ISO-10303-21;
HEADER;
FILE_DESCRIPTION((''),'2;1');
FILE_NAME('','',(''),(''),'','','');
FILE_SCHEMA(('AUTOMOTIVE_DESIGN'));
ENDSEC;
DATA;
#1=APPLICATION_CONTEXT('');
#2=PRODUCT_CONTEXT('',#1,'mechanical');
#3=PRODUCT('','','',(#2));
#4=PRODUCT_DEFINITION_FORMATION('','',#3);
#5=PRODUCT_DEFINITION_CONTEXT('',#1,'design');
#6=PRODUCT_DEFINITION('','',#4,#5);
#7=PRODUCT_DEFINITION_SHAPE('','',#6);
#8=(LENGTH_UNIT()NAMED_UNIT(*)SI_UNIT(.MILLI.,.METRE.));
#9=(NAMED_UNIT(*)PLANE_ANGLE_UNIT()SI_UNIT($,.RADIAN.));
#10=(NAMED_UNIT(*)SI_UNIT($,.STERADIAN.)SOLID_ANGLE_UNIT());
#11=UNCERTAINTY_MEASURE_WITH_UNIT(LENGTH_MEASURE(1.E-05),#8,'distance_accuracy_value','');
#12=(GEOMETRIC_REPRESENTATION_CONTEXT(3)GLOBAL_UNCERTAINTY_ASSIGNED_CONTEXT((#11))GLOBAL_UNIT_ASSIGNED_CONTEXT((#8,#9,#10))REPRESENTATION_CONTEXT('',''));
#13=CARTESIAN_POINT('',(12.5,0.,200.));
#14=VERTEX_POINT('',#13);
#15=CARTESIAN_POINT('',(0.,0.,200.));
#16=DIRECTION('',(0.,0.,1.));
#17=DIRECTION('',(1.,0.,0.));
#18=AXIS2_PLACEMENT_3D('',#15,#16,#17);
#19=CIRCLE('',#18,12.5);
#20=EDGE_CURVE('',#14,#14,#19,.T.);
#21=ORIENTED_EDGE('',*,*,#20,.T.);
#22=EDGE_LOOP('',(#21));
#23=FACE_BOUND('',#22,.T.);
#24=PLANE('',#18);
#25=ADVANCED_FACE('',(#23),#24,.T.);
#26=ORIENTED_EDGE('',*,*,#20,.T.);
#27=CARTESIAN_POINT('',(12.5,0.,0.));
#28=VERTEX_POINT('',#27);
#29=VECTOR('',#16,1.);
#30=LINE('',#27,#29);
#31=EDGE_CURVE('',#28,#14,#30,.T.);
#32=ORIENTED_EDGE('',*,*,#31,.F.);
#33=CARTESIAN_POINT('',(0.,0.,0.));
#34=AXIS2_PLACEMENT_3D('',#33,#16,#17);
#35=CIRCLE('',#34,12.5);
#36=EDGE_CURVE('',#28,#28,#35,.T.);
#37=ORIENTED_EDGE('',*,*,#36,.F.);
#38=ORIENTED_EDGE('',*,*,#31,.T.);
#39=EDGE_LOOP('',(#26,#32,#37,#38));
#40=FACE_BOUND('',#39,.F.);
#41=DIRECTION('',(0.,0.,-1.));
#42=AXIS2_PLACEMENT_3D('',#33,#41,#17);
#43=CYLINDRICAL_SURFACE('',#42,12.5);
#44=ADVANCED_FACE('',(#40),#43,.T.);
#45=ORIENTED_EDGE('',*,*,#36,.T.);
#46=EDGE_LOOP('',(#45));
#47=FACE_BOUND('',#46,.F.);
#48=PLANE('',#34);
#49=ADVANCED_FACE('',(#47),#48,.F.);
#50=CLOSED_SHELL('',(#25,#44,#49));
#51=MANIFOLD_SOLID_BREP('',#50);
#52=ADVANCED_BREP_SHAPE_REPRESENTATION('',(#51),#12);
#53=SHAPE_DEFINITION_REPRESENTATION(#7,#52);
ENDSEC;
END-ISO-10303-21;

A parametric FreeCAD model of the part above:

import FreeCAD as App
import Part
import Sketcher

V = App.Vector
Q = App.Units.Quantity

doc = App.newDocument("Part")
body = doc.addObject("PartDesign::Body", "Body")

# Sketch on XY plane
sketch1 = body.newObject("Sketcher::SketchObject", "Sketch")
sketch1.AttachmentSupport = (doc.getObject("XY_Plane"), [""])
sketch1.MapMode = "FlatFace"
sketch1.addGeometry(Part.Circle(V(0, 0, 0), V(0, 0, 1), 12.5), False)
sketch1.addConstraint([
    Sketcher.Constraint("Coincident", 0, 3, -1, 1),
    Sketcher.Constraint("Diameter", 0, Q("25 mm")),
])
pad1 = body.newObject("PartDesign::Pad", "Pad")
pad1.Profile = sketch1
pad1.Length = 200

doc.recompute()
